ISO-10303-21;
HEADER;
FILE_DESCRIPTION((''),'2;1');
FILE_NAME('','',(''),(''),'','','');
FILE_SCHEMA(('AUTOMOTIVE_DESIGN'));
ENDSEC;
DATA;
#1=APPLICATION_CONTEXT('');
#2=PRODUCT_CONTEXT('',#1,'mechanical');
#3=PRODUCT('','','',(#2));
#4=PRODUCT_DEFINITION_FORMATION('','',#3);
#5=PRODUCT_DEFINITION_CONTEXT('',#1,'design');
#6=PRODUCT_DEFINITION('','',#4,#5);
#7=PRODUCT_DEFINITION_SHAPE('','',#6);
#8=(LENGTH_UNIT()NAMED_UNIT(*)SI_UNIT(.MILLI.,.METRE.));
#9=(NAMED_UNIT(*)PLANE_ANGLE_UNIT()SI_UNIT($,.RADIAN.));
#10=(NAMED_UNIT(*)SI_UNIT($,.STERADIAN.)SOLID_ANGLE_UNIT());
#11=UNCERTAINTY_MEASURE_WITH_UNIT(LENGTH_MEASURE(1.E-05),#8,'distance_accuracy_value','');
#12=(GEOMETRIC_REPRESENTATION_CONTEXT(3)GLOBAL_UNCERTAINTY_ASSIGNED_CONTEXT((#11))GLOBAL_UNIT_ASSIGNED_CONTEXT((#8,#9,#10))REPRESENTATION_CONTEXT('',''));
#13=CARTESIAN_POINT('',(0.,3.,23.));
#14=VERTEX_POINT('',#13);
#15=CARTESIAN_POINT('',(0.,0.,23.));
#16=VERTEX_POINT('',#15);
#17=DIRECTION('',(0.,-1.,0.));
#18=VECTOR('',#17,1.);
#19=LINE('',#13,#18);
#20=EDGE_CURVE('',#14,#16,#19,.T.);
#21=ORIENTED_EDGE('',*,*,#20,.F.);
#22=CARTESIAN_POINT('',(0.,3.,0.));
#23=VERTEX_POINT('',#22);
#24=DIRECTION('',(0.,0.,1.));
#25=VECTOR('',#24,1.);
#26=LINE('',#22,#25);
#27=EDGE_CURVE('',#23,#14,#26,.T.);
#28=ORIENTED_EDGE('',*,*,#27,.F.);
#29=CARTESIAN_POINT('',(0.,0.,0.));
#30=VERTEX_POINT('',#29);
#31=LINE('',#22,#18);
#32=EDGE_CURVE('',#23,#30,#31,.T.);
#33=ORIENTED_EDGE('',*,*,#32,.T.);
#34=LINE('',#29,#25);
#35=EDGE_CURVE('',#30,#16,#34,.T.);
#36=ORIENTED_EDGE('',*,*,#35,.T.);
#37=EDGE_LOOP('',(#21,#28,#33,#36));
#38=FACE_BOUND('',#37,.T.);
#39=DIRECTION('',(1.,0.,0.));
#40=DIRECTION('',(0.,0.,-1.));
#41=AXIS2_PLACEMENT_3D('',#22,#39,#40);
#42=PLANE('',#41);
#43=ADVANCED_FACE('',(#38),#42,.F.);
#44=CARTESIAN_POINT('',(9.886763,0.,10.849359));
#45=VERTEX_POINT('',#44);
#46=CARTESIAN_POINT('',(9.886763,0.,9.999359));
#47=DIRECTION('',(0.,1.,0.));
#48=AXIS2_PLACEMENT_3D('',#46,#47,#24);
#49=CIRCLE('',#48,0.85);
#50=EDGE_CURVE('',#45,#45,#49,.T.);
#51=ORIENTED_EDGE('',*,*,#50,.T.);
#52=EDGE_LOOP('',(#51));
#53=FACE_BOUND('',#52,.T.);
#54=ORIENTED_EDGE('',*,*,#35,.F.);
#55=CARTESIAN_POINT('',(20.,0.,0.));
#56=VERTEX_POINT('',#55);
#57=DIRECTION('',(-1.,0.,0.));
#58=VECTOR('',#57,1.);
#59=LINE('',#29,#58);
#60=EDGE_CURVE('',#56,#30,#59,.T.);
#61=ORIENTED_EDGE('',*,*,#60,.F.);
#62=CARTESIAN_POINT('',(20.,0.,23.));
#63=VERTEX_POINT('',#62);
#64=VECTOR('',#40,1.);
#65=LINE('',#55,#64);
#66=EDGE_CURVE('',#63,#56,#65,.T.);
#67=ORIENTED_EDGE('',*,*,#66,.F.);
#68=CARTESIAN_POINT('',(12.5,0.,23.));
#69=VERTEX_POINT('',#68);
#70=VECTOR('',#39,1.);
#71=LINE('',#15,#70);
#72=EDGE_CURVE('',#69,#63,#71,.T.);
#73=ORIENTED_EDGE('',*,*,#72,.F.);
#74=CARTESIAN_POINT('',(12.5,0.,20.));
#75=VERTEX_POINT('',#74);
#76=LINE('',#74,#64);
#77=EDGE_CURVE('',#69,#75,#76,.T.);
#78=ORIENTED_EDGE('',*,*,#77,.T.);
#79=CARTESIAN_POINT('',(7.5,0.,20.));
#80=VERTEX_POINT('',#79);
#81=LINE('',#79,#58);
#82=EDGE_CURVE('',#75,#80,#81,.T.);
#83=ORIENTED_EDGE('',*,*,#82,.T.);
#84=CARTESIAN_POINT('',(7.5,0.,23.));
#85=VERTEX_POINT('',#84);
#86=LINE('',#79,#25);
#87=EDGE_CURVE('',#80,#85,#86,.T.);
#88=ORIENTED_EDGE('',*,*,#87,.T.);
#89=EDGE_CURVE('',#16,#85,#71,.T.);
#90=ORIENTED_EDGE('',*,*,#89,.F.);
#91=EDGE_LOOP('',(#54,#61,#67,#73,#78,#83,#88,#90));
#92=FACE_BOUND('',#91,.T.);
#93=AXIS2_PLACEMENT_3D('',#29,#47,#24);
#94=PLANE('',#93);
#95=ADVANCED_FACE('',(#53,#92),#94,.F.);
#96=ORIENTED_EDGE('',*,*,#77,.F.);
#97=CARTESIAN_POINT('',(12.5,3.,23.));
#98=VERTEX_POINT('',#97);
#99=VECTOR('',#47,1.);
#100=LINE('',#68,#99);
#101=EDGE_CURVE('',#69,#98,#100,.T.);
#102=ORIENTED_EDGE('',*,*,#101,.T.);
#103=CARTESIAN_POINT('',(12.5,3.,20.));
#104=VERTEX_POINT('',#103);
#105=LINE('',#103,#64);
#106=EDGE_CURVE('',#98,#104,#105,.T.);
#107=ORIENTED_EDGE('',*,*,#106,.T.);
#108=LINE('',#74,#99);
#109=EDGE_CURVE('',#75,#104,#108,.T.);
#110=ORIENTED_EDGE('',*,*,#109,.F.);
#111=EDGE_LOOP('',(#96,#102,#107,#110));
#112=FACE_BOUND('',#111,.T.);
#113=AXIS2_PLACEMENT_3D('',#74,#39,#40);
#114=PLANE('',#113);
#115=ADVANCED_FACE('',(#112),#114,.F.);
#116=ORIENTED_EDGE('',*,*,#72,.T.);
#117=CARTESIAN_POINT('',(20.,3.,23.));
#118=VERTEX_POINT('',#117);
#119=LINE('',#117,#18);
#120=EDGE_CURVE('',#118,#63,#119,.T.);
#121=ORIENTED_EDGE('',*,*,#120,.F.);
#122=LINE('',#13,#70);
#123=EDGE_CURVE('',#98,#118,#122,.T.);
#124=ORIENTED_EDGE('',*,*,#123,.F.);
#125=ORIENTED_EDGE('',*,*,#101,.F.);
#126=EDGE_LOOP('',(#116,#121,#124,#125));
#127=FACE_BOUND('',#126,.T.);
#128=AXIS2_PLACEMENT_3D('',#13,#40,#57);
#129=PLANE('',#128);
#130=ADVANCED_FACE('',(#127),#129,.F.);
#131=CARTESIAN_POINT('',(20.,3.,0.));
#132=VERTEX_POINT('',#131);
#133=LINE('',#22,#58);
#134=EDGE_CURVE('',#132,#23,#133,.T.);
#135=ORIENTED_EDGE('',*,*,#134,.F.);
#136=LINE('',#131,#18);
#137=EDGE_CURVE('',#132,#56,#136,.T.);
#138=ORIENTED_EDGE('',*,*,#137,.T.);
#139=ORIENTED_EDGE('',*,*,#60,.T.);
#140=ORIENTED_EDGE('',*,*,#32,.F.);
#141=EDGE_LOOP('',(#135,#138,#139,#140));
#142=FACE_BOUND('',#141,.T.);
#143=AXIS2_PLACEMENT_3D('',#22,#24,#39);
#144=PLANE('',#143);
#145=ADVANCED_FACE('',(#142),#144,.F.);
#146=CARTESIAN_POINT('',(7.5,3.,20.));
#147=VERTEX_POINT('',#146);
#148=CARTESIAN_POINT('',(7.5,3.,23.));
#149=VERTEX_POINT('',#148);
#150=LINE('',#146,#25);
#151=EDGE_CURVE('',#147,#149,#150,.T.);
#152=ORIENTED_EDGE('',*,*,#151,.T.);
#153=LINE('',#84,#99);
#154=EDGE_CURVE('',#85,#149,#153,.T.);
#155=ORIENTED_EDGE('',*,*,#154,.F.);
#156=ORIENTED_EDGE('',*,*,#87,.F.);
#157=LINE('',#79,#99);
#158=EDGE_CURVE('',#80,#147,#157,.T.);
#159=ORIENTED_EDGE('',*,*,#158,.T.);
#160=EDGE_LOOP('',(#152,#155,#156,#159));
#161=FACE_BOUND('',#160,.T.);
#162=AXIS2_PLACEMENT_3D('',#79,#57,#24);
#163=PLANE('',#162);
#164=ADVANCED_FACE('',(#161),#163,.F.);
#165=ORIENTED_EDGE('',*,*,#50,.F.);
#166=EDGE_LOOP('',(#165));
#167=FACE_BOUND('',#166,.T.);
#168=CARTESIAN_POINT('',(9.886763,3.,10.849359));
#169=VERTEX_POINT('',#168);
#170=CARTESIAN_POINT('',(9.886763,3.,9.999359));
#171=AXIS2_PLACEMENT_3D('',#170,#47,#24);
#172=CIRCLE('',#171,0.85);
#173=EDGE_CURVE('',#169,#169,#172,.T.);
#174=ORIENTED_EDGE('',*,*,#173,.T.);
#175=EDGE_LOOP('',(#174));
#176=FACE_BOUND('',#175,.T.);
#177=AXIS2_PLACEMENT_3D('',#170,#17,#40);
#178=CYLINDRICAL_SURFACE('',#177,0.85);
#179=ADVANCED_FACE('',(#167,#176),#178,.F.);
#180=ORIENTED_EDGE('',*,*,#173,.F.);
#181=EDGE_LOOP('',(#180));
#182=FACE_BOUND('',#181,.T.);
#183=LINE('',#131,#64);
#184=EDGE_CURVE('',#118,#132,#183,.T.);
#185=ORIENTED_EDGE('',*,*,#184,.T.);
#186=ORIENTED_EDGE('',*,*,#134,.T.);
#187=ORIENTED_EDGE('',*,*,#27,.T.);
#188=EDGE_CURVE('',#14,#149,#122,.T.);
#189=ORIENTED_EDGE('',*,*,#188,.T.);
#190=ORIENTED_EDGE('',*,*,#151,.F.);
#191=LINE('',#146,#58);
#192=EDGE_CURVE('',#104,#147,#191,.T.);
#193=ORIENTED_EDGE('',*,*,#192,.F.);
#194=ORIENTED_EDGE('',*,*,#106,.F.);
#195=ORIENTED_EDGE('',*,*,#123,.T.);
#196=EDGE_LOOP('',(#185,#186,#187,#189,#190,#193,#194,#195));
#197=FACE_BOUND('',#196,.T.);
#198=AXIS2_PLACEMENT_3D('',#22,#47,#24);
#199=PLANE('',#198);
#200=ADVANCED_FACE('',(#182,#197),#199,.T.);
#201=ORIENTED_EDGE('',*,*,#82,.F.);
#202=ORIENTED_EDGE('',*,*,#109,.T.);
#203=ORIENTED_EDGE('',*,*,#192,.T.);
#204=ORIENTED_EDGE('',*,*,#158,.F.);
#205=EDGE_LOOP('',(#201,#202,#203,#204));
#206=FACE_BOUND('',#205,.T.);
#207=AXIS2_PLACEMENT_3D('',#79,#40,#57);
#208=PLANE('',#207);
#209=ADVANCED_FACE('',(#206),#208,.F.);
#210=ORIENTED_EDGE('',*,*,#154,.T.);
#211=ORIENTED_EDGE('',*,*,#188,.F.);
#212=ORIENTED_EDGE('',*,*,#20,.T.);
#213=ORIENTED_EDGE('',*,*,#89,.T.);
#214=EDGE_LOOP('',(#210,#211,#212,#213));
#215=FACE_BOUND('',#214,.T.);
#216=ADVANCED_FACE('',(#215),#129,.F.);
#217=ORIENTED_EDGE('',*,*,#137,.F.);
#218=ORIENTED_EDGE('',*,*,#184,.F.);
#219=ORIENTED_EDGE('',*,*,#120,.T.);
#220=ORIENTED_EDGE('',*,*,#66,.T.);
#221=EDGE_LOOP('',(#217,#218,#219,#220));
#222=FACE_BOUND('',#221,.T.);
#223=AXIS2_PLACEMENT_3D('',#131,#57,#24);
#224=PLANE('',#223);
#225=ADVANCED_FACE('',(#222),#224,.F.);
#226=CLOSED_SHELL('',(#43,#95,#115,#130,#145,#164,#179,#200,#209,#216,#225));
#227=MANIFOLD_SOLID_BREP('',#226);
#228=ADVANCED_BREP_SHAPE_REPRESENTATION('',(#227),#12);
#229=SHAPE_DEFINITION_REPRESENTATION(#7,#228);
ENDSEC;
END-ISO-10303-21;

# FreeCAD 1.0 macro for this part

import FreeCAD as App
import Part
import Sketcher


def add_polygon(sketch, points):
    """Adds a closed chain of lines whose ends are joined by coincident constraints."""
    first, n = sketch.GeometryCount, len(points)
    for a, b in zip(points, points[1:] + points[:1]):
        sketch.addGeometry(Part.LineSegment(App.Vector(*a, 0), App.Vector(*b, 0)), False)
    for i in range(n):
        sketch.addConstraint(Sketcher.Constraint("Coincident", first + i, 2, first + (i + 1) % n, 1))

doc = App.newDocument("Part")
body = doc.addObject("PartDesign::Body", "Body")

sketch1 = body.newObject("Sketcher::SketchObject", "Sketch")
sketch1.AttachmentSupport = (doc.getObject("XZ_Plane"), [""])
sketch1.MapMode = "FlatFace"
add_polygon(sketch1, [(0, 0), (0, 23), (20, 23), (20, 0)])
sketch1.addGeometry(Part.Circle(App.Vector(9.9, 10, 0), App.Vector(0, 0, 1), 0.8), False)
sketch1.addConstraint([
    Sketcher.Constraint("Vertical", 0),
    Sketcher.Constraint("Horizontal", 1),
    Sketcher.Constraint("Vertical", 2),
    Sketcher.Constraint("Horizontal", 3),
    Sketcher.Constraint("Coincident", 3, 2, -1, 1),
    Sketcher.Constraint("Diameter", 4, 1.7),
    Sketcher.Constraint("DistanceX", 1, 1, 1, 2, 20.0),
    Sketcher.Constraint("DistanceY", 0, 1, 0, 2, 23.0),
    Sketcher.Constraint("DistanceY", -1, 1, 4, 3, 9.999359),
    Sketcher.Constraint("DistanceX", -1, 1, 4, 3, 9.886763),
])
pad1 = body.newObject("PartDesign::Pad", "Pad")
pad1.Profile = sketch1
pad1.Length = 3
pad1.Reversed = True

sketch2 = body.newObject("Sketcher::SketchObject", "Sketch001")
sketch2.AttachmentSupport = (doc.getObject("XZ_Plane"), [""])
sketch2.MapMode = "FlatFace"
sketch2.AttachmentOffset = App.Placement(App.Vector(0, 0, -3), App.Rotation())
add_polygon(sketch2, [(7.5, 20), (7.5, 23), (12.5, 23), (12.5, 20)])
sketch2.addConstraint([
    Sketcher.Constraint("Vertical", 0),
    Sketcher.Constraint("Horizontal", 1),
    Sketcher.Constraint("Vertical", 2),
    Sketcher.Constraint("Horizontal", 3),
    Sketcher.Constraint("DistanceX", 1, 1, 1, 2, 5.0),
    Sketcher.Constraint("DistanceY", 0, 1, 0, 2, 3.0),
    Sketcher.Constraint("DistanceY", -1, 1, 0, 2, 23.0),
    Sketcher.Constraint("DistanceX", -1, 1, 0, 2, 7.5),
])
pocket1 = body.newObject("PartDesign::Pocket", "Pocket")
pocket1.Profile = sketch2
pocket1.Type = "ThroughAll"
pocket1.Reversed = True

doc.recompute()
